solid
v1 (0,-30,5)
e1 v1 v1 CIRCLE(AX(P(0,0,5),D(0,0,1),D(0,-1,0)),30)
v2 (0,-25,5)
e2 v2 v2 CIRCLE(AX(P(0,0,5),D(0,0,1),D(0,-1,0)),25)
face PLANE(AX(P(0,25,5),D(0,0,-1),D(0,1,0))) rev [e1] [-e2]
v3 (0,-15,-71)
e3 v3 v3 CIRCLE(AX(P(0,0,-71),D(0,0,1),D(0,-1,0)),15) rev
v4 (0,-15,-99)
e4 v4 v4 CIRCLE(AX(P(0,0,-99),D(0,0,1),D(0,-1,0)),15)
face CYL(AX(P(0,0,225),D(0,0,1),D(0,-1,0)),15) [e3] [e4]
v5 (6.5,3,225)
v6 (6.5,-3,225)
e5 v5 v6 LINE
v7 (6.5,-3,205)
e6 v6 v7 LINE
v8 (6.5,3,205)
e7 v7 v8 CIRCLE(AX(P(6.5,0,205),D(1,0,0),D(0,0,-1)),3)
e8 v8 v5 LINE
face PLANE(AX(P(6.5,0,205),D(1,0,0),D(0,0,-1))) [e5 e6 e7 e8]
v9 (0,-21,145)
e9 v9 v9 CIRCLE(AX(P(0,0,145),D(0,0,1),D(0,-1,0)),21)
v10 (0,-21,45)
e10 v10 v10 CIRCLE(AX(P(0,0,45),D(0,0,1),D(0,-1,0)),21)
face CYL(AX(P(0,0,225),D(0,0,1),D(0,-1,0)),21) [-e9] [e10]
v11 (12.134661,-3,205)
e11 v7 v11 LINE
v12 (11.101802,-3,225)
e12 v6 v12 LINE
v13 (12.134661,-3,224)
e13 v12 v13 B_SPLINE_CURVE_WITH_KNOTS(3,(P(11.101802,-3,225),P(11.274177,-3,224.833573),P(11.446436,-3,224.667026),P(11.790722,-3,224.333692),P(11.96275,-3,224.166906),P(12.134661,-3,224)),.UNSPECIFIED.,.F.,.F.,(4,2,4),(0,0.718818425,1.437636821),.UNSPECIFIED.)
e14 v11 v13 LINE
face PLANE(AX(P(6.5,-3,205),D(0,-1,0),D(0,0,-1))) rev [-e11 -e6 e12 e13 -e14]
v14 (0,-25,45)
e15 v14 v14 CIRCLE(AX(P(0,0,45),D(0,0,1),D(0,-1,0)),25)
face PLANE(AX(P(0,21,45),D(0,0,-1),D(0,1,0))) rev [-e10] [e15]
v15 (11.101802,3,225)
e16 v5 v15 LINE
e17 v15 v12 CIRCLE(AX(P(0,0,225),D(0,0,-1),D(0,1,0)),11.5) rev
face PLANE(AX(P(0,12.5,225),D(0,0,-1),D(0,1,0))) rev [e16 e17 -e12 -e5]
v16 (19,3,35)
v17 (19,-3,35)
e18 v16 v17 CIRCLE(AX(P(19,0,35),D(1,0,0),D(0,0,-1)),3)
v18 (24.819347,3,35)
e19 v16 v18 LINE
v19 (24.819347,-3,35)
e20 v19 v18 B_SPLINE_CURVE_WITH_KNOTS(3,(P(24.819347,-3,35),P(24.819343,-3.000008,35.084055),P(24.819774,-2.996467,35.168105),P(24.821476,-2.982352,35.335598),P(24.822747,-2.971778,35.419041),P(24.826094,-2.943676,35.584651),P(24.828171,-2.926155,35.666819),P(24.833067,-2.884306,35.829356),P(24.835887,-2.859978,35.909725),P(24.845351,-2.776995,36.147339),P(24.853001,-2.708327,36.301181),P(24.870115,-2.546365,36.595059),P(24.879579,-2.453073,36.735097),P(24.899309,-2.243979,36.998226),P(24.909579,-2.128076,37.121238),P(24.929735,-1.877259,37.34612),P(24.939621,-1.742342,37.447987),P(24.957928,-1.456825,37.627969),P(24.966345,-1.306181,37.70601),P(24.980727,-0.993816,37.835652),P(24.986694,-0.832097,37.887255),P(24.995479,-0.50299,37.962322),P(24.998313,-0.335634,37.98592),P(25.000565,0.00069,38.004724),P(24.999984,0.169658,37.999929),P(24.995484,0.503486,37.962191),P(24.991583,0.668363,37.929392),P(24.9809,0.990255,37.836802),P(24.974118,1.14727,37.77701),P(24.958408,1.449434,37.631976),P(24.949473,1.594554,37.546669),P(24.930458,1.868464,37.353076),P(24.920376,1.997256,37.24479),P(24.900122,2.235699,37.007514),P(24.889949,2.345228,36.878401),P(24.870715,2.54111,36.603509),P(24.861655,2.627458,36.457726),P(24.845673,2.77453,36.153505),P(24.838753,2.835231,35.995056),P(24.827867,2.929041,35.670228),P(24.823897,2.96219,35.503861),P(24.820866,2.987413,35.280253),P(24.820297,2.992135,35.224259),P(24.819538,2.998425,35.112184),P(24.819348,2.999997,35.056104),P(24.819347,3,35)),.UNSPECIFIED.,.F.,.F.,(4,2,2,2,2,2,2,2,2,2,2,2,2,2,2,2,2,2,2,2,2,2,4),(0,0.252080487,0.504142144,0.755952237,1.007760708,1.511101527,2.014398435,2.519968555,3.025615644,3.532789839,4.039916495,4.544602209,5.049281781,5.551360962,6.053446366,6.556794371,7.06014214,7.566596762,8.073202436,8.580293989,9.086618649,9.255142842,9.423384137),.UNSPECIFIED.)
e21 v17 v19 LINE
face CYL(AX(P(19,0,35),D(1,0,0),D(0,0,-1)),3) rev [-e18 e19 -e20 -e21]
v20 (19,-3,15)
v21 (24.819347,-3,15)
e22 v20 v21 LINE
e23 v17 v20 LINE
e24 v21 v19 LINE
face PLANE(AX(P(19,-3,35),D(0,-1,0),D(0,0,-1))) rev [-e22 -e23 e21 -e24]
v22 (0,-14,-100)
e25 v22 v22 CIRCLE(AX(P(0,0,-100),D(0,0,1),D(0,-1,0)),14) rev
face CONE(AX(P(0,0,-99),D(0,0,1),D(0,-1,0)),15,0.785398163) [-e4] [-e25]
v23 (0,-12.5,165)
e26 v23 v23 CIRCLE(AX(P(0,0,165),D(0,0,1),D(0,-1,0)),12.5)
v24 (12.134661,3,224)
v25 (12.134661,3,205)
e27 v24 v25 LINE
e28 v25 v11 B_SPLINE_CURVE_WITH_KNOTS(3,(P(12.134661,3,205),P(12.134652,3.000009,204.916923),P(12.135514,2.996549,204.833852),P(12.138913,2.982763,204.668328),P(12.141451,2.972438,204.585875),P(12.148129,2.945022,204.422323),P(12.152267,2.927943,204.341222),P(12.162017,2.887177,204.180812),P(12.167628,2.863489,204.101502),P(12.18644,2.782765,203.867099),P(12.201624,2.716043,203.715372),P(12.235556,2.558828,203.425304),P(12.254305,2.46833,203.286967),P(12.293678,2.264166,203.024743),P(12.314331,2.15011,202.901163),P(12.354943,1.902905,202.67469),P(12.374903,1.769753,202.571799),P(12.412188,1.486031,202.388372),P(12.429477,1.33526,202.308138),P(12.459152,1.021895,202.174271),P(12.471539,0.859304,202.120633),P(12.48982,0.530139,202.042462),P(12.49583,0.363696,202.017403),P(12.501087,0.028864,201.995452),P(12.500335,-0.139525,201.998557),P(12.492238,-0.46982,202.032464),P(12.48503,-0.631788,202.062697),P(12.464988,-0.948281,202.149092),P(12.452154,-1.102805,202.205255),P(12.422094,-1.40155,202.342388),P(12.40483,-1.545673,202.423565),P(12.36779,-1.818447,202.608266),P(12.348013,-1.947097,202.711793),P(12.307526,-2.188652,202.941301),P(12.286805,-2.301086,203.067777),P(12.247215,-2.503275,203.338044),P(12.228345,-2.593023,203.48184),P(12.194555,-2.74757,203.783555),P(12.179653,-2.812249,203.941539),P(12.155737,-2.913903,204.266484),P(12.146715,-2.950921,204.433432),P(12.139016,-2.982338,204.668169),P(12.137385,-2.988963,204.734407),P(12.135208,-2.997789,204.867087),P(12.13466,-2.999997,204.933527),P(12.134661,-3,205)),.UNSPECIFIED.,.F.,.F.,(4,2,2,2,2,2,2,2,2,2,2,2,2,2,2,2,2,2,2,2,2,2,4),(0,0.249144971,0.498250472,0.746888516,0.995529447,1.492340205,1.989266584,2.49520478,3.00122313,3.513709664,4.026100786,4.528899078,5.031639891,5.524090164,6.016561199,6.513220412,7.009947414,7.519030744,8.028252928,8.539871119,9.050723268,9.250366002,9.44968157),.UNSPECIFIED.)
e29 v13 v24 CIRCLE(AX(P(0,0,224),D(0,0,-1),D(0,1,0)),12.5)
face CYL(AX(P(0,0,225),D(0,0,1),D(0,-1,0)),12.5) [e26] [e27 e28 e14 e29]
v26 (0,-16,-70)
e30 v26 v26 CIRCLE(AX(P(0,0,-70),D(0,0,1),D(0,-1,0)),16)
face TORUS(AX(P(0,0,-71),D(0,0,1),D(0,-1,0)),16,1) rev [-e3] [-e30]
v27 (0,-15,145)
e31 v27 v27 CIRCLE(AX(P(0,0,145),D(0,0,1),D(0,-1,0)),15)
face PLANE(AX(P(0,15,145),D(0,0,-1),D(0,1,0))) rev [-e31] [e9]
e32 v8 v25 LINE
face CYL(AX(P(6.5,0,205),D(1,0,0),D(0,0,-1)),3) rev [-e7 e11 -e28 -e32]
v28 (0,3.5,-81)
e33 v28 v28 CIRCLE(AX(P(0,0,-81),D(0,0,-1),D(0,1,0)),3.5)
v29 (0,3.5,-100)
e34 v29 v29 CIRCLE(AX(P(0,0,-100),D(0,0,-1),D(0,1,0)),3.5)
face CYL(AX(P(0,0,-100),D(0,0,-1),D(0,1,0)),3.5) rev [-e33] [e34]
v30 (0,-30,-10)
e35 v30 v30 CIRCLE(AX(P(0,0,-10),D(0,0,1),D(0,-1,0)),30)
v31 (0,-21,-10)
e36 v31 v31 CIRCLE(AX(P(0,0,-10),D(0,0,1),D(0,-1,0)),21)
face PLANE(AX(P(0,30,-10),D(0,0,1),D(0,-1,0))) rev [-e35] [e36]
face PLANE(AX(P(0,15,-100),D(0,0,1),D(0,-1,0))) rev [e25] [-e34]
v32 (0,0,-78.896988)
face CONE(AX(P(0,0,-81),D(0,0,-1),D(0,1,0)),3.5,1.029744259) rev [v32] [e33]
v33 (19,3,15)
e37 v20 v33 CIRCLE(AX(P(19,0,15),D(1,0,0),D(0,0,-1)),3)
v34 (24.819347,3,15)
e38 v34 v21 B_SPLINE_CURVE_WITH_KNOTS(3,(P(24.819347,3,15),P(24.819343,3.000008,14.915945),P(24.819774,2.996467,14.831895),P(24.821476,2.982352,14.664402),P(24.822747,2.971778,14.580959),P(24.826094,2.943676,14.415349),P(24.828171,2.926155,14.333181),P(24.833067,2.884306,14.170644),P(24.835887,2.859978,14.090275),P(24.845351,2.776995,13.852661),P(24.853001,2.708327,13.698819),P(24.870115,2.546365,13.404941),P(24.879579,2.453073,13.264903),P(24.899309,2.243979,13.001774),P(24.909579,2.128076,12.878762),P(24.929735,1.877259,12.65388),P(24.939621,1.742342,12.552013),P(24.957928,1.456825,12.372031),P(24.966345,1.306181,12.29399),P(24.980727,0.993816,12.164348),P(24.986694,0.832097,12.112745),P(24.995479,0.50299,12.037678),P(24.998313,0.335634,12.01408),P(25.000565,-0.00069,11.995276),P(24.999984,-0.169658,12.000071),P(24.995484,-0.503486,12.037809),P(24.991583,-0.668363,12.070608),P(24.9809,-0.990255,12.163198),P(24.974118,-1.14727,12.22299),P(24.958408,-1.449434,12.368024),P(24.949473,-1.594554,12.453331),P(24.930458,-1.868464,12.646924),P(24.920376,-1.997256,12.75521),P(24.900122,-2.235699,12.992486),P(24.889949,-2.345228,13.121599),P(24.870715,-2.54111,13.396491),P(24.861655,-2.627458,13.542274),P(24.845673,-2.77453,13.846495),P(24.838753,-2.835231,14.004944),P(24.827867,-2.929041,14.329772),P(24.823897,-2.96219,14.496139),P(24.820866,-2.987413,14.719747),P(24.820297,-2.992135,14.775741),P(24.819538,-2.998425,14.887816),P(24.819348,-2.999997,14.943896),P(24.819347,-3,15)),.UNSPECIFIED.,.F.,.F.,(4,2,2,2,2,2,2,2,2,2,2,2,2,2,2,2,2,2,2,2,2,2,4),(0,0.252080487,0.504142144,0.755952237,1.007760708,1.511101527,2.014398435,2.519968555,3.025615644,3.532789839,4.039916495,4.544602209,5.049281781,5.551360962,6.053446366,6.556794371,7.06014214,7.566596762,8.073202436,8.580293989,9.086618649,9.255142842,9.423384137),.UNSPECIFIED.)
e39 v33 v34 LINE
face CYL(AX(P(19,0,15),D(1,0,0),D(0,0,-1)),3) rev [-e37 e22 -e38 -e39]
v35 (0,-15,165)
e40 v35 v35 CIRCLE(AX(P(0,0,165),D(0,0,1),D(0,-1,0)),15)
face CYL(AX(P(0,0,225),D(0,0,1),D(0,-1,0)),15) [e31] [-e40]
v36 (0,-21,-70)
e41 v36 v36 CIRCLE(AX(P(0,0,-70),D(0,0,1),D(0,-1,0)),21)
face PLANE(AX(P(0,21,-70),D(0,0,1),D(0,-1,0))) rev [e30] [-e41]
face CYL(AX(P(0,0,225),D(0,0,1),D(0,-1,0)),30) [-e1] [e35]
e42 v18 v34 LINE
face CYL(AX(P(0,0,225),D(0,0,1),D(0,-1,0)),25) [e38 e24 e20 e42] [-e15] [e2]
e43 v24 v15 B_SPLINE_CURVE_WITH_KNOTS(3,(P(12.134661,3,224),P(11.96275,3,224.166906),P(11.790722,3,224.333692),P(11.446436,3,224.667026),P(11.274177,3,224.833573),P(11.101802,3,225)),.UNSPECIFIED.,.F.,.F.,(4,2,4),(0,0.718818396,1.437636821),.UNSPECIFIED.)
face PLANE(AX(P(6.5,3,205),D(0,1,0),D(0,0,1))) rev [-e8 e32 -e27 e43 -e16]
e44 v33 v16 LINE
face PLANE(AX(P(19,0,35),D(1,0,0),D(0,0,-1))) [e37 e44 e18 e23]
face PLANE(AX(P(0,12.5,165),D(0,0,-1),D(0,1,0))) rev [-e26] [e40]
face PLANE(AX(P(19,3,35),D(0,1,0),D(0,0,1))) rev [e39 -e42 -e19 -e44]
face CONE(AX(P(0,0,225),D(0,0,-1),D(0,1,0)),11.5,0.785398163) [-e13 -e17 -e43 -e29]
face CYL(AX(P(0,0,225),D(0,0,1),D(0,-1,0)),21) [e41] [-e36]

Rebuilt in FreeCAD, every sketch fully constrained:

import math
import FreeCAD as App
import Part
import Sketcher
from FreeCAD import Vector
Q = App.Units.Quantity


def edges_at(feature, points):
    """Names of the edges that pass closest to the given points."""
    edges = feature.Shape.Edges
    near = lambda p: min(range(len(edges)), key=lambda i: edges[i].distToShape(Part.Vertex(*p))[0])
    return sorted({f"Edge{near(p) + 1}" for p in points})

doc = App.newDocument("Part")
params = doc.addObject("Spreadsheet::Sheet", "Params")
for row, (alias, value) in enumerate([
    ("sketch1_width", "15 mm"),
    ("sketch1_width2", "6 mm"),
    ("sketch1_width3", "9 mm"),
    ("sketch1_width4", "5 mm"),
    ("sketch1_height", "325 mm"),
    ("revolution_angle", "360 deg"),
    ("sketch2_diameter", "7 mm"),
    ("hole_diameter", "7 mm"),
    ("hole_depth", "19 mm"),
    ("sketch3_radius", "3 mm"),
    ("sketch3_height", "20 mm"),
    ("pocket1_length", "6 mm"),
    ("sketch4_radius", "3 mm"),
    ("sketch4_height", "20 mm"),
    ("pocket2_length", "6 mm"),
    ("chamfer_size", "1 mm"),
    ("fillet_radius", "1 mm"),
], start=1):
    params.set(f"A{row}", alias)
    params.set(f"B{row}", "=" + value)
    params.setAlias(f"B{row}", alias)

body = doc.addObject("PartDesign::Body", "Body")

# Sketch on YZ plane
sketch1 = body.newObject("Sketcher::SketchObject", "Sketch")
sketch1.AttachmentSupport = (doc.getObject("YZ_Plane"), [""])
sketch1.MapMode = "FlatFace"
sketch1.addGeometry([
    Part.LineSegment(Vector(12.5, 225, 0), Vector(0, 225, 0)),  # 0
    Part.LineSegment(Vector(0, 225, 0), Vector(0, -100, 0)),  # 1
    Part.LineSegment(Vector(0, -100, 0), Vector(15, -100, 0)),  # 2
    Part.LineSegment(Vector(15, -100, 0), Vector(15, -70, 0)),  # 3
    Part.LineSegment(Vector(15, -70, 0), Vector(21, -70, 0)),  # 4
    Part.LineSegment(Vector(21, -70, 0), Vector(21, -10, 0)),  # 5
    Part.LineSegment(Vector(21, -10, 0), Vector(30, -10, 0)),  # 6
    Part.LineSegment(Vector(30, -10, 0), Vector(30, 5, 0)),  # 7
    Part.LineSegment(Vector(30, 5, 0), Vector(25, 5, 0)),  # 8
    Part.LineSegment(Vector(25, 5, 0), Vector(25, 45, 0)),  # 9
    Part.LineSegment(Vector(25, 45, 0), Vector(21, 45, 0)),  # 10
    Part.LineSegment(Vector(21, 45, 0), Vector(21, 145, 0)),  # 11
    Part.LineSegment(Vector(21, 145, 0), Vector(15, 145, 0)),  # 12
    Part.LineSegment(Vector(15, 145, 0), Vector(15, 165, 0)),  # 13
    Part.LineSegment(Vector(15, 165, 0), Vector(12.5, 165, 0)),  # 14
    Part.LineSegment(Vector(12.5, 165, 0), Vector(12.5, 225, 0)),  # 15
], False)
sketch1.addConstraint([
    Sketcher.Constraint("Coincident", 0, 2, 1, 1),
    Sketcher.Constraint("Coincident", 1, 2, 2, 1),
    Sketcher.Constraint("Coincident", 2, 2, 3, 1),
    Sketcher.Constraint("Coincident", 3, 2, 4, 1),
    Sketcher.Constraint("Coincident", 4, 2, 5, 1),
    Sketcher.Constraint("Coincident", 5, 2, 6, 1),
    Sketcher.Constraint("Coincident", 6, 2, 7, 1),
    Sketcher.Constraint("Coincident", 7, 2, 8, 1),
    Sketcher.Constraint("Coincident", 8, 2, 9, 1),
    Sketcher.Constraint("Coincident", 9, 2, 10, 1),
    Sketcher.Constraint("Coincident", 10, 2, 11, 1),
    Sketcher.Constraint("Coincident", 11, 2, 12, 1),
    Sketcher.Constraint("Coincident", 12, 2, 13, 1),
    Sketcher.Constraint("Coincident", 13, 2, 14, 1),
    Sketcher.Constraint("Coincident", 14, 2, 15, 1),
    Sketcher.Constraint("Coincident", 15, 2, 0, 1),
    Sketcher.Constraint("Horizontal", 0),
    Sketcher.Constraint("Vertical", 1),
    Sketcher.Constraint("Horizontal", 2),
    Sketcher.Constraint("Vertical", 3),
    Sketcher.Constraint("Horizontal", 4),
    Sketcher.Constraint("Vertical", 5),
    Sketcher.Constraint("Horizontal", 6),
    Sketcher.Constraint("Vertical", 7),
    Sketcher.Constraint("Horizontal", 8),
    Sketcher.Constraint("Vertical", 9),
    Sketcher.Constraint("Horizontal", 10),
    Sketcher.Constraint("Vertical", 11),
    Sketcher.Constraint("Horizontal", 12),
    Sketcher.Constraint("Vertical", 13),
    Sketcher.Constraint("Horizontal", 14),
    Sketcher.Constraint("Vertical", 15),
    Sketcher.Constraint("PointOnObject", 0, 2, -2),
    Sketcher.Constraint("Vertical", 5, 2, 10, 2),
    Sketcher.Constraint("Vertical", 3, 2, 12, 2),
    Sketcher.Constraint("Equal", 2, 7),
    Sketcher.Constraint("Equal", 5, 15),
    Sketcher.Constraint("DistanceX", 2, 1, 2, 2, Q("15 mm")),
    Sketcher.Constraint("DistanceX", 4, 1, 4, 2, Q("6 mm")),
    Sketcher.Constraint("DistanceX", 6, 1, 6, 2, Q("9 mm")),
    Sketcher.Constraint("DistanceX", 8, 2, 8, 1, Q("5 mm")),
    Sketcher.Constraint("DistanceY", 1, 2, 1, 1, Q("325 mm")),
    Sketcher.Constraint("DistanceY", 3, 1, 3, 2, Q("30 mm")),
    Sketcher.Constraint("DistanceY", 5, 1, 5, 2, Q("60 mm")),
    Sketcher.Constraint("DistanceY", 9, 1, 9, 2, Q("40 mm")),
    Sketcher.Constraint("DistanceY", 11, 1, 11, 2, Q("100 mm")),
    Sketcher.Constraint("DistanceX", 0, 2, 0, 1, Q("12.5 mm")),
    Sketcher.Constraint("DistanceY", -1, 1, 0, 2, Q("225 mm")),
])
sketch1.setExpression("Constraints[37]", "Params.sketch1_width")
sketch1.setExpression("Constraints[38]", "Params.sketch1_width2")
sketch1.setExpression("Constraints[39]", "Params.sketch1_width3")
sketch1.setExpression("Constraints[40]", "Params.sketch1_width4")
sketch1.setExpression("Constraints[41]", "Params.sketch1_height")
revolution = body.newObject("PartDesign::Revolution", "Revolution")
revolution.Profile = sketch1
revolution.ReferenceAxis = (sketch1, ["V_Axis"])
revolution.setExpression("Angle", "Params.revolution_angle")

# Sketch on XY plane
sketch2 = body.newObject("Sketcher::SketchObject", "Sketch001")
sketch2.AttachmentSupport = (doc.getObject("XY_Plane"), [""])
sketch2.MapMode = "FlatFace"
sketch2.AttachmentOffset = App.Placement(Vector(0, 0, -100), App.Rotation())
sketch2.addGeometry(Part.Circle(Vector(0, 0, 0), Vector(0, 0, 1), 3.5), False)
sketch2.addConstraint([
    Sketcher.Constraint("Coincident", 0, 3, -1, 1),
    Sketcher.Constraint("Diameter", 0, Q("7 mm")),
])
sketch2.setExpression("Constraints[1]", "Params.sketch2_diameter")
doc.recompute()
hole = body.newObject("PartDesign::Hole", "Hole")
hole.Profile = sketch2
hole.ThreadType = "None"
hole.setExpression("Diameter", "Params.hole_diameter")
hole.DepthType = "Dimension"
hole.setExpression("Depth", "Params.hole_depth")
hole.DrillPoint = "Angled"
hole.DrillPointAngle = 118
hole.Reversed = True

# Sketch on YZ plane
sketch3 = body.newObject("Sketcher::SketchObject", "Sketch002")
sketch3.AttachmentSupport = (doc.getObject("YZ_Plane"), [""])
sketch3.MapMode = "FlatFace"
sketch3.AttachmentOffset = App.Placement(Vector(0, 0, 12.5), App.Rotation())
sketch3.addGeometry([
    Part.LineSegment(Vector(3, 205, 0), Vector(3, 225, 0)),
    Part.LineSegment(Vector(3, 225, 0), Vector(-3, 225, 0)),
    Part.LineSegment(Vector(-3, 225, 0), Vector(-3, 205, 0)),
    Part.ArcOfCircle(Part.Circle(Vector(0, 205, 0), Vector(0, 0, 1), 3), math.radians(180), math.radians(360)),
], False)
sketch3.addConstraint([
    Sketcher.Constraint("Coincident", 0, 2, 1, 1),
    Sketcher.Constraint("Coincident", 1, 2, 2, 1),
    Sketcher.Constraint("Tangent", 2, 2, 3, 1),
    Sketcher.Constraint("Tangent", 3, 2, 0, 1),
    Sketcher.Constraint("Vertical", 0),
    Sketcher.Constraint("Horizontal", 1),
    Sketcher.Constraint("Vertical", 2),
    Sketcher.Constraint("PointOnObject", 3, 3, -2),
    Sketcher.Constraint("Radius", 3, Q("3 mm")),
    Sketcher.Constraint("DistanceY", 0, 1, 0, 2, Q("20 mm")),
    Sketcher.Constraint("DistanceY", -1, 1, 3, 3, Q("205 mm")),
])
sketch3.setExpression("Constraints[8]", "Params.sketch3_radius")
sketch3.setExpression("Constraints[9]", "Params.sketch3_height")
pocket1 = body.newObject("PartDesign::Pocket", "Pocket")
pocket1.Profile = sketch3
pocket1.setExpression("Length", "Params.pocket1_length")

# Sketch on YZ plane
sketch4 = body.newObject("Sketcher::SketchObject", "Sketch003")
sketch4.AttachmentSupport = (doc.getObject("YZ_Plane"), [""])
sketch4.MapMode = "FlatFace"
sketch4.AttachmentOffset = App.Placement(Vector(0, 0, 25), App.Rotation())
sketch4.addGeometry([
    Part.LineSegment(Vector(3, 15, 0), Vector(3, 35, 0)),
    Part.ArcOfCircle(Part.Circle(Vector(0, 35, 0), Vector(0, 0, 1), 3), math.radians(0), math.radians(180)),
    Part.LineSegment(Vector(-3, 35, 0), Vector(-3, 15, 0)),
    Part.ArcOfCircle(Part.Circle(Vector(0, 15, 0), Vector(0, 0, 1), 3), math.radians(180), math.radians(360)),
], False)
sketch4.addConstraint([
    Sketcher.Constraint("Tangent", 0, 2, 1, 1),
    Sketcher.Constraint("Tangent", 1, 2, 2, 1),
    Sketcher.Constraint("Tangent", 2, 2, 3, 1),
    Sketcher.Constraint("Tangent", 3, 2, 0, 1),
    Sketcher.Constraint("Vertical", 0),
    Sketcher.Constraint("Vertical", 2),
    Sketcher.Constraint("PointOnObject", 1, 3, -2),
    Sketcher.Constraint("Radius", 1, Q("3 mm")),
    Sketcher.Constraint("DistanceY", 0, 1, 0, 2, Q("20 mm")),
    Sketcher.Constraint("DistanceY", -1, 1, 1, 3, Q("35 mm")),
])
sketch4.setExpression("Constraints[7]", "Params.sketch4_radius")
sketch4.setExpression("Constraints[8]", "Params.sketch4_height")
pocket2 = body.newObject("PartDesign::Pocket", "Pocket001")
pocket2.Profile = sketch4
pocket2.setExpression("Length", "Params.pocket2_length")
doc.recompute()

chamfer = body.newObject("PartDesign::Chamfer", "Chamfer")
chamfer.Base = (pocket2, edges_at(pocket2, [(0, -15, -100), (-9.843, -7.706, 225)]))
chamfer.setExpression("Size", "Params.chamfer_size")
doc.recompute()

fillet = body.newObject("PartDesign::Fillet", "Fillet")
fillet.Base = (chamfer, edges_at(chamfer, [(0, -15, -70)]))
fillet.setExpression("Radius", "Params.fillet_radius")

doc.recompute()
